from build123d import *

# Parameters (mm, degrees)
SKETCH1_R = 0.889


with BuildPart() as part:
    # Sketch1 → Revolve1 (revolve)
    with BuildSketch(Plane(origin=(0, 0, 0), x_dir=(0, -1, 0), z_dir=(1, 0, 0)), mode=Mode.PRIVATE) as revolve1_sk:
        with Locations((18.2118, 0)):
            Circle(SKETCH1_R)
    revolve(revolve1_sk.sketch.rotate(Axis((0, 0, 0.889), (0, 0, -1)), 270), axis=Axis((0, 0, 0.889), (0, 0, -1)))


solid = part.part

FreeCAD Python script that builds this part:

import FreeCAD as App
import Part
import Sketcher
from FreeCAD import Vector
Q = App.Units.Quantity

doc = App.newDocument("Part")
params = doc.addObject("Spreadsheet::Sheet", "Params")
for row, (alias, value) in enumerate([
    ("sketch1_diameter", "0.07 in"),
    ("revolution_angle", "360 deg"),
], start=1):
    params.set(f"A{row}", alias)
    params.set(f"B{row}", "=" + value)
    params.setAlias(f"B{row}", alias)

body = doc.addObject("PartDesign::Body", "Body")

sketch1 = body.newObject("Sketcher::SketchObject", "Sketch")
sketch1.AttachmentSupport = (doc.getObject("YZ_Plane"), [""])
sketch1.MapMode = "FlatFace"
sketch1.addGeometry(Part.Circle(Vector(-18.2118, 0, 0), Vector(0, 0, 1), 0.889), False)
sketch1.addConstraint(Sketcher.Constraint("PointOnObject", 0, 3, -1))
sketch1.addConstraint(Sketcher.Constraint("Diameter", 0, Q("0.07 in")))
sketch1.addConstraint(Sketcher.Constraint("DistanceX", 0, 3, -1, 1, Q("0.717 in")))
sketch1.setExpression("Constraints[1]", "Params.sketch1_diameter")
revolution = body.newObject("PartDesign::Revolution", "Revolution")
revolution.Profile = sketch1
revolution.ReferenceAxis = (sketch1, ["V_Axis"])
revolution.setExpression("Angle", "Params.revolution_angle")

doc.recompute()
